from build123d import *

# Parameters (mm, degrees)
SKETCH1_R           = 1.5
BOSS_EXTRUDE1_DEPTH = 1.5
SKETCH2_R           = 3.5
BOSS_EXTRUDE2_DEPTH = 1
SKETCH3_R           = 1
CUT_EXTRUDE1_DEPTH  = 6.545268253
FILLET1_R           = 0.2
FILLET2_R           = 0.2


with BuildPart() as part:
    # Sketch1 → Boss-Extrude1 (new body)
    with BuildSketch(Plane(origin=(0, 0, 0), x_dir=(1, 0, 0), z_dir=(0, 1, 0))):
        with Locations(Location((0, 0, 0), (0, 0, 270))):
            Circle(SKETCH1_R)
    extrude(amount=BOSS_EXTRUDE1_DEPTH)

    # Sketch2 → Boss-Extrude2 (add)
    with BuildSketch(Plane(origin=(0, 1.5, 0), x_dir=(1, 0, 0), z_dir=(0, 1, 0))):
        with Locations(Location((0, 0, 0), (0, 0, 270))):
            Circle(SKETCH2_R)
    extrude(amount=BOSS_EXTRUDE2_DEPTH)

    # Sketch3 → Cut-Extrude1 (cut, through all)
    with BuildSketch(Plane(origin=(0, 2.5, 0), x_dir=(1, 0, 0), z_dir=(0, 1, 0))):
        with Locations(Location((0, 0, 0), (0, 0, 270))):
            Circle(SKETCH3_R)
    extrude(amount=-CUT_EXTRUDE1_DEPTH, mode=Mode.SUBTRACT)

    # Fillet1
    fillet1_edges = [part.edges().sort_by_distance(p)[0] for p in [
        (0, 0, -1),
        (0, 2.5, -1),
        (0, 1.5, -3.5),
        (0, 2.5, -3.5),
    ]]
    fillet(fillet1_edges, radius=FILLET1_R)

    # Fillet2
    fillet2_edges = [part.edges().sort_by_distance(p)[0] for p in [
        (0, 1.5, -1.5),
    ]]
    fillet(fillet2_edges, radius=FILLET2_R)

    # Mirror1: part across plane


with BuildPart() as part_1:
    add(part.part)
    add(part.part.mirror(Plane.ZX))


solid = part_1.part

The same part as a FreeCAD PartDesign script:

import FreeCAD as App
import Part
import Sketcher


def edges_at(feature, points):
    """Names of the edges that pass closest to the given points."""
    edges = feature.Shape.Edges
    near = lambda p: min(range(len(edges)), key=lambda i: edges[i].distToShape(Part.Vertex(*p))[0])
    return sorted({f"Edge{near(p) + 1}" for p in points})

doc = App.newDocument("Part")
params = doc.addObject("Spreadsheet::Sheet", "Params")
for row, (alias, value) in enumerate([
    ("sketch1_diameter", "3 mm"),
    ("pad1_length", "1.5 mm"),
    ("sketch2_diameter", "7 mm"),
    ("pad2_length", "1 mm"),
    ("sketch3_diameter", "2 mm"),
    ("fillet_radius", "0.2 mm"),
    ("fillet2_radius", "0.2 mm"),
], start=1):
    params.set(f"A{row}", alias)
    params.set(f"B{row}", "=" + value)
    params.setAlias(f"B{row}", alias)

body = doc.addObject("PartDesign::Body", "Body")

# Sketch on XZ plane
sketch1 = body.newObject("Sketcher::SketchObject", "Sketch")
sketch1.AttachmentSupport = (doc.getObject("XZ_Plane"), [""])
sketch1.MapMode = "FlatFace"
sketch1.addGeometry(Part.Circle(App.Vector(0, 0, 0), App.Vector(0, 0, 1), 1.5), False)
sketch1.addConstraint([
    Sketcher.Constraint("Coincident", 0, 3, -1, 1),
    Sketcher.Constraint("Diameter", 0, 3.0),
])
sketch1.setExpression("Constraints[1]", "Params.sketch1_diameter")
pad1 = body.newObject("PartDesign::Pad", "Pad")
pad1.Profile = sketch1
pad1.setExpression("Length", "Params.pad1_length")
pad1.Reversed = True

# Sketch on XZ plane
sketch2 = body.newObject("Sketcher::SketchObject", "Sketch001")
sketch2.AttachmentSupport = (doc.getObject("XZ_Plane"), [""])
sketch2.MapMode = "FlatFace"
sketch2.AttachmentOffset = App.Placement(App.Vector(0, 0, -1.5), App.Rotation())
sketch2.addGeometry(Part.Circle(App.Vector(0, 0, 0), App.Vector(0, 0, 1), 3.5), False)
sketch2.addConstraint([
    Sketcher.Constraint("Coincident", 0, 3, -1, 1),
    Sketcher.Constraint("Diameter", 0, 7.0),
])
sketch2.setExpression("Constraints[1]", "Params.sketch2_diameter")
pad2 = body.newObject("PartDesign::Pad", "Pad001")
pad2.Profile = sketch2
pad2.setExpression("Length", "Params.pad2_length")
pad2.Reversed = True

# Sketch on XZ plane
sketch3 = body.newObject("Sketcher::SketchObject", "Sketch002")
sketch3.AttachmentSupport = (doc.getObject("XZ_Plane"), [""])
sketch3.MapMode = "FlatFace"
sketch3.AttachmentOffset = App.Placement(App.Vector(0, 0, -2.5), App.Rotation())
sketch3.addGeometry(Part.Circle(App.Vector(0, 0, 0), App.Vector(0, 0, 1), 1), False)
sketch3.addConstraint([
    Sketcher.Constraint("Coincident", 0, 3, -1, 1),
    Sketcher.Constraint("Diameter", 0, 2.0),
])
sketch3.setExpression("Constraints[1]", "Params.sketch3_diameter")
pocket1 = body.newObject("PartDesign::Pocket", "Pocket")
pocket1.Profile = sketch3
pocket1.Type = "ThroughAll"
pocket1.Reversed = True
doc.recompute()

fillet = body.newObject("PartDesign::Fillet", "Fillet")
fillet.Base = (pocket1, edges_at(pocket1, [
    (0, 0, -1),
    (0, 2.5, -1),
    (0, 1.5, -3.5),
    (0, 2.5, -3.5),
]))
fillet.setExpression("Radius", "Params.fillet_radius")
doc.recompute()

fillet2 = body.newObject("PartDesign::Fillet", "Fillet001")
fillet2.Base = (fillet, edges_at(fillet, [(0, 1.5, -1.5)]))
fillet2.setExpression("Radius", "Params.fillet2_radius")
body2 = doc.addObject("PartDesign::Body", "Body001")
doc.recompute()

body2.BaseFeature = body
doc.recompute()

mirroring = doc.addObject("Part::Mirroring", "Mirroring")
mirroring.Source = body
mirroring.Base = App.Vector(0, 0, 0)
mirroring.Normal = App.Vector(0, 1, 0)
body3 = doc.addObject("PartDesign::Body", "Body002")
body3.BaseFeature = mirroring
boolean = body2.newObject("PartDesign::Boolean", "Boolean")
boolean.Type = "Fuse"
boolean.addObjects([body3])
doc.recompute()
mirroring.Visibility = False

doc.recompute()
